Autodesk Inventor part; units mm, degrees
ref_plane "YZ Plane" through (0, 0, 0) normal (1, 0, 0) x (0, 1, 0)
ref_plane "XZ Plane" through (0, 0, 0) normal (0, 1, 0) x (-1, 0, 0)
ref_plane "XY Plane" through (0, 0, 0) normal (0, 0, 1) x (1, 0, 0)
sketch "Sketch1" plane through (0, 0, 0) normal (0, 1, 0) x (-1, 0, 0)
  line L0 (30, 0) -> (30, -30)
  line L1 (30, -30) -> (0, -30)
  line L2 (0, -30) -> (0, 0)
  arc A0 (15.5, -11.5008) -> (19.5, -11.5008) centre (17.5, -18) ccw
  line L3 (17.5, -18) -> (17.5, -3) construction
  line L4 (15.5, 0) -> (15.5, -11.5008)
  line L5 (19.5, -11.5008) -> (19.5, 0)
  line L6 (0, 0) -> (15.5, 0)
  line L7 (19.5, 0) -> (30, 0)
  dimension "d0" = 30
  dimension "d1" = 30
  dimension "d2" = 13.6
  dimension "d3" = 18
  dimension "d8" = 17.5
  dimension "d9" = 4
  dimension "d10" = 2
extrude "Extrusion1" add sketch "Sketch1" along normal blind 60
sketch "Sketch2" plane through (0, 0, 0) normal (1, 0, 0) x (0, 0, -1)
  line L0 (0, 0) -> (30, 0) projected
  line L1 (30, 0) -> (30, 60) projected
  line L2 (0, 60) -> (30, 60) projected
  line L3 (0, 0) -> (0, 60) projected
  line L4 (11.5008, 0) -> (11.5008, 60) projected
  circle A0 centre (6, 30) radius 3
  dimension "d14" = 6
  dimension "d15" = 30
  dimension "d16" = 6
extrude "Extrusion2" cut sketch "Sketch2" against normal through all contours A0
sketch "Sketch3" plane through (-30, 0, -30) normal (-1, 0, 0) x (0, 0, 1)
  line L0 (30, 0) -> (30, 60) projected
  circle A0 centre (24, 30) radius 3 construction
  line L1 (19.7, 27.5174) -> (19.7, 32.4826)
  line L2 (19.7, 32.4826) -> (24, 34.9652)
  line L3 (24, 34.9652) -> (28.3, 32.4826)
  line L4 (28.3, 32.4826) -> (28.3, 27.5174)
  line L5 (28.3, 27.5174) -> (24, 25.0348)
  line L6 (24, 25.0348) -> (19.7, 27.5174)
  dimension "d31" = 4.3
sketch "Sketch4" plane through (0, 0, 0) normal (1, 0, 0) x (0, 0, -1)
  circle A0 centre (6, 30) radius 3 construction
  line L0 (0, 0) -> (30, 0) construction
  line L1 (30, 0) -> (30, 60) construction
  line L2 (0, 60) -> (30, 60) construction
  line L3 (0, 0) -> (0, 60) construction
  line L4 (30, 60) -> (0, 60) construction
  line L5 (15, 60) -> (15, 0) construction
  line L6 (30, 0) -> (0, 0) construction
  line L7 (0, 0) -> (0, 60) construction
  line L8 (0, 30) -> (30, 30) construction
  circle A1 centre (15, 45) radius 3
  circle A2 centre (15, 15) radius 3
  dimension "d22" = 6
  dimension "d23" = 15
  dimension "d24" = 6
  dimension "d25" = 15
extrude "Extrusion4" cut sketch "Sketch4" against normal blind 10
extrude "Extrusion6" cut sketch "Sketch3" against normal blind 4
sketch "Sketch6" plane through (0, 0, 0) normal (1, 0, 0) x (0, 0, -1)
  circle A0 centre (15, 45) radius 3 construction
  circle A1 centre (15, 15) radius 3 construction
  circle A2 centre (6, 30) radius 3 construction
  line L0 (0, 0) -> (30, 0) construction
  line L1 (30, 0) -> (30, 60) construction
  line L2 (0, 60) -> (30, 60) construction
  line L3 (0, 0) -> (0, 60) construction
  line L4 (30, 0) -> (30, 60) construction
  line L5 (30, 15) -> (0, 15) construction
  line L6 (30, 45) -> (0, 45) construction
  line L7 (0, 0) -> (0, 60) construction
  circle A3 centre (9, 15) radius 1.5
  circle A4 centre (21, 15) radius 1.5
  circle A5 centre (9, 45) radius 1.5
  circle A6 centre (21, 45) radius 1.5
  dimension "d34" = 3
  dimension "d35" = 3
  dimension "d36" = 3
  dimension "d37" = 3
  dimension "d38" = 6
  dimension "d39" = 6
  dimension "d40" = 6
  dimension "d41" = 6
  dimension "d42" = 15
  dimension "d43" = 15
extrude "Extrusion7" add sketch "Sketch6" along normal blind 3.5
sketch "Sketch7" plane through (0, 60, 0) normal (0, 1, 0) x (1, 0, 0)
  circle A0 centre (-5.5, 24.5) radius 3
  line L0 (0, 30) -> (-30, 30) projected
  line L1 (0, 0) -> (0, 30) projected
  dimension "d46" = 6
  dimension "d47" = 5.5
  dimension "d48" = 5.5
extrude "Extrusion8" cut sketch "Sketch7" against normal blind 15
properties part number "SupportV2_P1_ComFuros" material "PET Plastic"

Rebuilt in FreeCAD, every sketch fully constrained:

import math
import FreeCAD as App
import Part
import Sketcher

V = App.Vector
Q = App.Units.Quantity

doc = App.newDocument("Part")
body = doc.addObject("PartDesign::Body", "Body")

sketch1 = doc.addObject("Sketcher::SketchObject", "Sketch")
body.addObject(sketch1)
sketch1.AttachmentSupport = (doc.XZ_Plane, [""])
sketch1.MapMode = "FlatFace"
sketch1.addGeometry(Part.LineSegment(V(-30, -30, 0), V(-30, 0, 0)), False)
sketch1.addGeometry(Part.LineSegment(V(-30, 0, 0), V(-19.5, 0, 0)), False)
sketch1.addGeometry(Part.LineSegment(V(-19.5, 0, 0), V(-19.5, -11.5, 0)), False)
sketch1.addGeometry(Part.ArcOfCircle(Part.Circle(V(-17.5, -18, 0), V(0, 0, 1), 6.8), math.radians(107), math.radians(433)), False)
sketch1.addGeometry(Part.LineSegment(V(-15.5, -11.5, 0), V(-15.5, 0, 0)), False)
sketch1.addGeometry(Part.LineSegment(V(-15.5, 0, 0), V(0, 0, 0)), False)
sketch1.addGeometry(Part.LineSegment(V(0, 0, 0), V(0, -30, 0)), False)
sketch1.addGeometry(Part.LineSegment(V(0, -30, 0), V(-30, -30, 0)), False)
sketch1.addConstraint(Sketcher.Constraint("Coincident", 0, 2, 1, 1))
sketch1.addConstraint(Sketcher.Constraint("Coincident", 1, 2, 2, 1))
sketch1.addConstraint(Sketcher.Constraint("Coincident", 2, 2, 3, 1))
sketch1.addConstraint(Sketcher.Constraint("Coincident", 3, 2, 4, 1))
sketch1.addConstraint(Sketcher.Constraint("Coincident", 4, 2, 5, 1))
sketch1.addConstraint(Sketcher.Constraint("Coincident", 5, 2, 6, 1))
sketch1.addConstraint(Sketcher.Constraint("Coincident", 6, 2, 7, 1))
sketch1.addConstraint(Sketcher.Constraint("Coincident", 7, 2, 0, 1))
sketch1.addConstraint(Sketcher.Constraint("Vertical", 0))
sketch1.addConstraint(Sketcher.Constraint("Horizontal", 1))
sketch1.addConstraint(Sketcher.Constraint("Vertical", 2))
sketch1.addConstraint(Sketcher.Constraint("Vertical", 4))
sketch1.addConstraint(Sketcher.Constraint("Horizontal", 5))
sketch1.addConstraint(Sketcher.Constraint("Vertical", 6))
sketch1.addConstraint(Sketcher.Constraint("Horizontal", 7))
sketch1.addConstraint(Sketcher.Constraint("Coincident", 5, 2, -1, 1))
sketch1.addConstraint(Sketcher.Constraint("PointOnObject", 0, 2, -1))
sketch1.addConstraint(Sketcher.Constraint("Horizontal", 2, 2, 3, 2))
sketch1.addConstraint(Sketcher.Constraint("Equal", 7, 0))
sketch1.addConstraint(Sketcher.Constraint("Radius", 3, Q("6.8 mm")))
sketch1.addConstraint(Sketcher.Constraint("DistanceX", 7, 2, 7, 1, Q("30 mm")))
sketch1.addConstraint(Sketcher.Constraint("DistanceY", 3, 3, -1, 1, Q("18 mm")))
sketch1.addConstraint(Sketcher.Constraint("DistanceX", 1, 2, 3, 3, Q("2 mm")))
sketch1.addConstraint(Sketcher.Constraint("DistanceX", 3, 3, -1, 1, Q("17.5 mm")))
pad1 = doc.addObject("PartDesign::Pad", "Pad")
body.addObject(pad1)
pad1.Profile = sketch1
pad1.Length = 60
pad1.Reversed = True

sketch2 = doc.addObject("Sketcher::SketchObject", "Sketch001")
body.addObject(sketch2)
sketch2.AttachmentSupport = (doc.YZ_Plane, [""])
sketch2.MapMode = "FlatFace"
sketch2.addGeometry(Part.Circle(V(30, -6, 0), V(0, 0, 1), 3), False)
sketch2.addConstraint(Sketcher.Constraint("Diameter", 0, Q("6 mm")))
sketch2.addConstraint(Sketcher.Constraint("DistanceX", -1, 1, 0, 3, Q("30 mm")))
sketch2.addConstraint(Sketcher.Constraint("DistanceY", 0, 3, -1, 1, Q("6 mm")))
pocket1 = doc.addObject("PartDesign::Pocket", "Pocket")
body.addObject(pocket1)
pocket1.Profile = sketch2
pocket1.Type = "ThroughAll"

sketch3 = doc.addObject("Sketcher::SketchObject", "Sketch002")
body.addObject(sketch3)
sketch3.AttachmentSupport = (doc.YZ_Plane, [""])
sketch3.MapMode = "FlatFace"
sketch3.addGeometry(Part.Circle(V(45, -15, 0), V(0, 0, 1), 3), False)
sketch3.addGeometry(Part.Circle(V(15, -15, 0), V(0, 0, 1), 3), False)
sketch3.addConstraint(Sketcher.Constraint("Equal", 0, 1))
sketch3.addConstraint(Sketcher.Constraint("Horizontal", 0, 3, 1, 3))
sketch3.addConstraint(Sketcher.Constraint("Diameter", 0, Q("6 mm")))
sketch3.addConstraint(Sketcher.Constraint("DistanceY", 0, 3, -1, 1, Q("15 mm")))
sketch3.addConstraint(Sketcher.Constraint("DistanceX", -1, 1, 1, 3, Q("15 mm")))
sketch3.addConstraint(Sketcher.Constraint("DistanceX", -1, 1, 0, 3, Q("45 mm")))
pocket2 = doc.addObject("PartDesign::Pocket", "Pocket001")
body.addObject(pocket2)
pocket2.Profile = sketch3
pocket2.Length = 10

sketch4 = doc.addObject("Sketcher::SketchObject", "Sketch003")
body.addObject(sketch4)
sketch4.AttachmentSupport = (doc.YZ_Plane, [""])
sketch4.MapMode = "FlatFace"
sketch4.AttachmentOffset = App.Placement(V(0, 0, -30), App.Rotation())
sketch4.addGeometry(Part.LineSegment(V(32.5, -10.3, 0), V(27.5, -10.3, 0)), False)
sketch4.addGeometry(Part.LineSegment(V(27.5, -10.3, 0), V(25, -6, 0)), False)
sketch4.addGeometry(Part.LineSegment(V(25, -6, 0), V(27.5, -1.7, 0)), False)
sketch4.addGeometry(Part.LineSegment(V(27.5, -1.7, 0), V(32.5, -1.7, 0)), False)
sketch4.addGeometry(Part.LineSegment(V(32.5, -1.7, 0), V(35, -6, 0)), False)
sketch4.addGeometry(Part.LineSegment(V(35, -6, 0), V(32.5, -10.3, 0)), False)
sketch4.addConstraint(Sketcher.Constraint("Coincident", 0, 2, 1, 1))
sketch4.addConstraint(Sketcher.Constraint("Coincident", 1, 2, 2, 1))
sketch4.addConstraint(Sketcher.Constraint("Coincident", 2, 2, 3, 1))
sketch4.addConstraint(Sketcher.Constraint("Coincident", 3, 2, 4, 1))
sketch4.addConstraint(Sketcher.Constraint("Coincident", 4, 2, 5, 1))
sketch4.addConstraint(Sketcher.Constraint("Coincident", 5, 2, 0, 1))
sketch4.addConstraint(Sketcher.Constraint("Horizontal", 0))
sketch4.addConstraint(Sketcher.Constraint("Horizontal", 3))
sketch4.addConstraint(Sketcher.Constraint("Parallel", 1, 4))
sketch4.addConstraint(Sketcher.Constraint("Parallel", 2, 5))
sketch4.addConstraint(Sketcher.Constraint("Horizontal", 1, 2, 4, 2))
sketch4.addConstraint(Sketcher.Constraint("Vertical", 0, 2, 2, 2))
sketch4.addConstraint(Sketcher.Constraint("Vertical", 3, 2, 5, 2))
sketch4.addConstraint(Sketcher.Constraint("DistanceY", 0, 2, 1, 2, Q("4.3 mm")))
sketch4.addConstraint(Sketcher.Constraint("Angle", 1, Q("120 deg")))
sketch4.addConstraint(Sketcher.Constraint("DistanceY", 1, 2, -1, 1, Q("6 mm")))
sketch4.addConstraint(Sketcher.Constraint("DistanceX", 0, 2, 0, 1, Q("4.9652 mm")))
sketch4.addConstraint(Sketcher.Constraint("DistanceX", -1, 1, 0, 2, Q("27.5174 mm")))
pocket3 = doc.addObject("PartDesign::Pocket", "Pocket002")
body.addObject(pocket3)
pocket3.Profile = sketch4
pocket3.Length = 4
pocket3.Reversed = True

sketch5 = doc.addObject("Sketcher::SketchObject", "Sketch004")
body.addObject(sketch5)
sketch5.AttachmentSupport = (doc.YZ_Plane, [""])
sketch5.MapMode = "FlatFace"
sketch5.addGeometry(Part.Circle(V(15, -9, 0), V(0, 0, 1), 1.5), False)
sketch5.addGeometry(Part.Circle(V(15, -21, 0), V(0, 0, 1), 1.5), False)
sketch5.addGeometry(Part.Circle(V(45, -9, 0), V(0, 0, 1), 1.5), False)
sketch5.addGeometry(Part.Circle(V(45, -21, 0), V(0, 0, 1), 1.5), False)
sketch5.addConstraint(Sketcher.Constraint("Equal", 0, 1))
sketch5.addConstraint(Sketcher.Constraint("Equal", 1, 2))
sketch5.addConstraint(Sketcher.Constraint("Equal", 2, 3))
sketch5.addConstraint(Sketcher.Constraint("Horizontal", 0, 3, 2, 3))
sketch5.addConstraint(Sketcher.Constraint("Horizontal", 1, 3, 3, 3))
sketch5.addConstraint(Sketcher.Constraint("Vertical", 0, 3, 1, 3))
sketch5.addConstraint(Sketcher.Constraint("Vertical", 2, 3, 3, 3))
sketch5.addConstraint(Sketcher.Constraint("Diameter", 0, Q("3 mm")))
sketch5.addConstraint(Sketcher.Constraint("DistanceX", -1, 1, 0, 3, Q("15 mm")))
sketch5.addConstraint(Sketcher.Constraint("DistanceY", 0, 3, -1, 1, Q("9 mm")))
sketch5.addConstraint(Sketcher.Constraint("DistanceY", 1, 3, -1, 1, Q("21 mm")))
sketch5.addConstraint(Sketcher.Constraint("DistanceX", -1, 1, 2, 3, Q("45 mm")))
pad2 = doc.addObject("PartDesign::Pad", "Pad001")
body.addObject(pad2)
pad2.Profile = sketch5
pad2.Length = 3.5

sketch6 = doc.addObject("Sketcher::SketchObject", "Sketch005")
body.addObject(sketch6)
sketch6.AttachmentSupport = (doc.XZ_Plane, [""])
sketch6.MapMode = "FlatFace"
sketch6.AttachmentOffset = App.Placement(V(0, 0, -60), App.Rotation())
sketch6.addGeometry(Part.Circle(V(-5.5, -24.5, 0), V(0, 0, 1), 3), False)
sketch6.addConstraint(Sketcher.Constraint("Diameter", 0, Q("6 mm")))
sketch6.addConstraint(Sketcher.Constraint("DistanceX", 0, 3, -1, 1, Q("5.5 mm")))
sketch6.addConstraint(Sketcher.Constraint("DistanceY", 0, 3, -1, 1, Q("24.5 mm")))
pocket4 = doc.addObject("PartDesign::Pocket", "Pocket003")
body.addObject(pocket4)
pocket4.Profile = sketch6
pocket4.Length = 15
pocket4.Reversed = True

doc.recompute()
